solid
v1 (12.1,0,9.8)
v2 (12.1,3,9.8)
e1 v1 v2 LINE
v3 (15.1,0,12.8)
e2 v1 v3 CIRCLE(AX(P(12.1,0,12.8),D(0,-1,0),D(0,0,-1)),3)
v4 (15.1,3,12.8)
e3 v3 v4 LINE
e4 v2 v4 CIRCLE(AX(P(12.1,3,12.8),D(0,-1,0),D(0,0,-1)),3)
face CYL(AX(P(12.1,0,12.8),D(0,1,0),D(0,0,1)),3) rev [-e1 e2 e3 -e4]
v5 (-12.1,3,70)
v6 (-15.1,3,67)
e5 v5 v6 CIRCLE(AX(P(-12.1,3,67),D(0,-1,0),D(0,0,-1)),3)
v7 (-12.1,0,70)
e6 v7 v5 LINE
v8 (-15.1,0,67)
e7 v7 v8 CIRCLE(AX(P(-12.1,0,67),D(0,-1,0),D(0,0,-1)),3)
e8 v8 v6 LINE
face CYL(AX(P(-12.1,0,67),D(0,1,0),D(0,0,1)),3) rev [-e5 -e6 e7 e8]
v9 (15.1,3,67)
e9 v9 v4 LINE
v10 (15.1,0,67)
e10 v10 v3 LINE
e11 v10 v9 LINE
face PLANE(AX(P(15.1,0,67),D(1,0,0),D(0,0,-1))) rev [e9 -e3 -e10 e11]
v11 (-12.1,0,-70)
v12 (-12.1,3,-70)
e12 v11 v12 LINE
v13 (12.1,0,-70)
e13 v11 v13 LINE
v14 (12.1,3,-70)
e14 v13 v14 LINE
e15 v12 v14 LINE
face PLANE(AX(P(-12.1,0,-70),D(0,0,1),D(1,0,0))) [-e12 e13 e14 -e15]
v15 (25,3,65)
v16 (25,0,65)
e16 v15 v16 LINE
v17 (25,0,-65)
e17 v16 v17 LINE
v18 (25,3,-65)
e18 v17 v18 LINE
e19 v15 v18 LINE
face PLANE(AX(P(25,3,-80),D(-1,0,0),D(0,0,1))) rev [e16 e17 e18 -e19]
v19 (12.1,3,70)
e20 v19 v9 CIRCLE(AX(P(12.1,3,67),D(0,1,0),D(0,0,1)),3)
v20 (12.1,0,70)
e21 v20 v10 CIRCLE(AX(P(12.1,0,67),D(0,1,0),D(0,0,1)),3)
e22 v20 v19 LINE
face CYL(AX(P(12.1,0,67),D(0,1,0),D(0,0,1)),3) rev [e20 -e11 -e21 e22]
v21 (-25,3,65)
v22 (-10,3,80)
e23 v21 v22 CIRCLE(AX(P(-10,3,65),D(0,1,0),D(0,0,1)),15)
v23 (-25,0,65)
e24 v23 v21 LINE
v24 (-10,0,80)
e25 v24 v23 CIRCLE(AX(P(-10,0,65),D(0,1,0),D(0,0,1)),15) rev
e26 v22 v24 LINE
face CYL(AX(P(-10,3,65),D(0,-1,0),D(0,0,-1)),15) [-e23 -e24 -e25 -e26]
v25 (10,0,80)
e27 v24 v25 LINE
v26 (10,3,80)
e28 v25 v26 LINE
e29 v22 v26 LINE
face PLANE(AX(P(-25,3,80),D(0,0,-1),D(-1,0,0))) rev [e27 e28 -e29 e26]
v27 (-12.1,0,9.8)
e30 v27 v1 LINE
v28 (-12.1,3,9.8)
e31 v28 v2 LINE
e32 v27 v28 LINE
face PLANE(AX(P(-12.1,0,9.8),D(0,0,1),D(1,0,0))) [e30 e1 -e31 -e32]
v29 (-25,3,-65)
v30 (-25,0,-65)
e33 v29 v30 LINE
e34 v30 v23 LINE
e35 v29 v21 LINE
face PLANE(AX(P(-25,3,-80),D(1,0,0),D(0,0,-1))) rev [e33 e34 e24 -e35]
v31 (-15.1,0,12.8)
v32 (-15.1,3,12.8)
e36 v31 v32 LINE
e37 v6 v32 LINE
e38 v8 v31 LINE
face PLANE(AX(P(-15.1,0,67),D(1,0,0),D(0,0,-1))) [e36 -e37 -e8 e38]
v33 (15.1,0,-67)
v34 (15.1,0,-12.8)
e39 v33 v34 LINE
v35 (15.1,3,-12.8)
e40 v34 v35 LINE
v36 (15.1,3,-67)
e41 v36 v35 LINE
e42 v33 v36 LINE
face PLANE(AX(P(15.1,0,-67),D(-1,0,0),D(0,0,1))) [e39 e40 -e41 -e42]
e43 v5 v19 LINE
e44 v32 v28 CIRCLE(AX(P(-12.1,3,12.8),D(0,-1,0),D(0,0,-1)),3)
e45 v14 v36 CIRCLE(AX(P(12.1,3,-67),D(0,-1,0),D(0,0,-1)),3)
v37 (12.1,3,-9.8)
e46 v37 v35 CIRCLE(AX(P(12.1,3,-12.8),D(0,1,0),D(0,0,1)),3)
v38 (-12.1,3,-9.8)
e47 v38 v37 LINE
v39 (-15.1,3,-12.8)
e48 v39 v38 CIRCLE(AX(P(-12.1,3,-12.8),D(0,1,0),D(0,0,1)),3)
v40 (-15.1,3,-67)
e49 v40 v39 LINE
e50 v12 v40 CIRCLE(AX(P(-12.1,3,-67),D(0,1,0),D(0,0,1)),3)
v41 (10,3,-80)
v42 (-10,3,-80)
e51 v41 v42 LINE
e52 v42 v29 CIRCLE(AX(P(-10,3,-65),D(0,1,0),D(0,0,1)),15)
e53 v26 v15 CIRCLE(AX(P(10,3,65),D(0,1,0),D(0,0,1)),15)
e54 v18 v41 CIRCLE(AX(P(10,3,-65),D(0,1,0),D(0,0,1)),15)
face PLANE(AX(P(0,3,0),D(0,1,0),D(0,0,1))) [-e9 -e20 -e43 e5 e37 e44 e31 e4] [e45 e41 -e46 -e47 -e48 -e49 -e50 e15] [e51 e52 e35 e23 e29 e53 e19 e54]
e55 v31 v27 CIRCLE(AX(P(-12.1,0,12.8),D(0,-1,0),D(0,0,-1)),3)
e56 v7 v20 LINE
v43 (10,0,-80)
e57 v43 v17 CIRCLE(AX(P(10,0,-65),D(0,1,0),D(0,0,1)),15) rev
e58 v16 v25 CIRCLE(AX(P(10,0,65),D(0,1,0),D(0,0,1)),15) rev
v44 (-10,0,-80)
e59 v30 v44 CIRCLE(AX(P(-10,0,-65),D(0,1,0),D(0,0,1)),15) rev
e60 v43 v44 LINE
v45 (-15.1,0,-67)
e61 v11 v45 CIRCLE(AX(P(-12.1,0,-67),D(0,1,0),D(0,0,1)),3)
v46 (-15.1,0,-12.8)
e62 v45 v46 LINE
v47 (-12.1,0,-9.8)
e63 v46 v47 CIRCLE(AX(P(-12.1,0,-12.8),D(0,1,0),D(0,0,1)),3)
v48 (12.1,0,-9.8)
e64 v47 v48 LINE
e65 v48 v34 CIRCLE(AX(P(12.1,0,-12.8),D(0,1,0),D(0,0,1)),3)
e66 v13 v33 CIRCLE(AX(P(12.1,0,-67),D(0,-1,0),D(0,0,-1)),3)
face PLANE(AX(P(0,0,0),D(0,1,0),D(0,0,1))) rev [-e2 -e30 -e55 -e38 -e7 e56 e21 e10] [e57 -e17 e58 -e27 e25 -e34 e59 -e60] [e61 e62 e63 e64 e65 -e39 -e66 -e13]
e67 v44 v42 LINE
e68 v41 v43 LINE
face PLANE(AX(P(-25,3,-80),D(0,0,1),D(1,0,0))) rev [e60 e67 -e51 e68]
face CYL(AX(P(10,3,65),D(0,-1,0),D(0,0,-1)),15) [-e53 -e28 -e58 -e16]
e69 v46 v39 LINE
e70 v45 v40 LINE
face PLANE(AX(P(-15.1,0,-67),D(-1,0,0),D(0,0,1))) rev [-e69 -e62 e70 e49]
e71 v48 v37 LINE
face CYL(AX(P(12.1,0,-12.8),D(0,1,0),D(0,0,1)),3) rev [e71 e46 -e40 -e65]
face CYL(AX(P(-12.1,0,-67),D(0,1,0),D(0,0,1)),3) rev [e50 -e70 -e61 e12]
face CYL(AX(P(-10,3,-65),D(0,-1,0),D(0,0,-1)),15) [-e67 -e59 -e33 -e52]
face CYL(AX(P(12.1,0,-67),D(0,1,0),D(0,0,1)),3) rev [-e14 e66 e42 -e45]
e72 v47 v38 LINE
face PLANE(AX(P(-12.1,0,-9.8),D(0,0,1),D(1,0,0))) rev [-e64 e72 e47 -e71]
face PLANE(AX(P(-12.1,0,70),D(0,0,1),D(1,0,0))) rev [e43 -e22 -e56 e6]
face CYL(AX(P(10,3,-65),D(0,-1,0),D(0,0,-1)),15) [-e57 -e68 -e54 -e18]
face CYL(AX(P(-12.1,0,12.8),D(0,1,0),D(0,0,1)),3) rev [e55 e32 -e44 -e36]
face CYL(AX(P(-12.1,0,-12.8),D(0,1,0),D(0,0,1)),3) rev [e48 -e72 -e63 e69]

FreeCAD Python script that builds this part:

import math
import FreeCAD as App
import Part
import Sketcher
from FreeCAD import Vector
Q = App.Units.Quantity


def edges_at(feature, points):
    """Names of the edges that pass closest to the given points."""
    edges = feature.Shape.Edges
    near = lambda p: min(range(len(edges)), key=lambda i: edges[i].distToShape(Part.Vertex(*p))[0])
    return sorted({f"Edge{near(p) + 1}" for p in points})


def add_polygon(sketch, points):
    """Adds a closed chain of lines whose ends are joined by coincident constraints."""
    first, n = sketch.GeometryCount, len(points)
    for a, b in zip(points, points[1:] + points[:1]):
        sketch.addGeometry(Part.LineSegment(App.Vector(*a, 0), App.Vector(*b, 0)), False)
    for i in range(n):
        sketch.addConstraint(Sketcher.Constraint("Coincident", first + i, 2, first + (i + 1) % n, 1))

doc = App.newDocument("Part")
body = doc.addObject("PartDesign::Body", "Body")

# Sketch on XZ plane
sketch1 = body.newObject("Sketcher::SketchObject", "Sketch")
sketch1.AttachmentSupport = (doc.getObject("XZ_Plane"), [""])
sketch1.MapMode = "FlatFace"
add_polygon(sketch1, [(-25, -80), (-25, 80), (25, 80), (25, -80)])  # lines 0-3
sketch1.addConstraint(Sketcher.Constraint("Vertical", 0))
sketch1.addConstraint(Sketcher.Constraint("Horizontal", 1))
sketch1.addConstraint(Sketcher.Constraint("Vertical", 2))
sketch1.addConstraint(Sketcher.Constraint("Horizontal", 3))
sketch1.addConstraint(Sketcher.Constraint("Symmetric", 0, 2, 2, 2, -1, 1))
sketch1.addConstraint(Sketcher.Constraint("DistanceX", 1, 1, 1, 2, Q("50 mm")))
sketch1.addConstraint(Sketcher.Constraint("DistanceY", 0, 1, 0, 2, Q("160 mm")))
pad1 = body.newObject("PartDesign::Pad", "Pad")
pad1.Profile = sketch1
pad1.Length = 3
pad1.Reversed = True
doc.recompute()

fillet = body.newObject("PartDesign::Fillet", "Fillet")
fillet.Base = (pad1, edges_at(pad1, [
    (25, 1.5, 80),
    (-25, 1.5, 80),
    (-25, 1.5, -80),
    (25, 1.5, -80),
]))
fillet.Radius = 15

# Sketch on XZ plane
sketch2 = body.newObject("Sketcher::SketchObject", "Sketch001")
sketch2.AttachmentSupport = (doc.getObject("XZ_Plane"), [""])
sketch2.MapMode = "FlatFace"
sketch2.AttachmentOffset = App.Placement(Vector(0, 0, -3), App.Rotation())
sketch2.addGeometry(Part.LineSegment(Vector(12.1, -70, 0), Vector(-12.1, -70, 0)), False)
sketch2.addGeometry(Part.ArcOfCircle(Part.Circle(Vector(-12.1, -67, 0), Vector(0, 0, 1), 3), math.radians(180), math.radians(270)), False)
sketch2.addGeometry(Part.LineSegment(Vector(-15.1, -67, 0), Vector(-15.1, -12.8, 0)), False)
sketch2.addGeometry(Part.ArcOfCircle(Part.Circle(Vector(-12.1, -12.8, 0), Vector(0, 0, 1), 3), math.radians(90), math.radians(180)), False)
sketch2.addGeometry(Part.LineSegment(Vector(-12.1, -9.8, 0), Vector(12.1, -9.8, 0)), False)
sketch2.addGeometry(Part.ArcOfCircle(Part.Circle(Vector(12.1, -12.8, 0), Vector(0, 0, 1), 3), math.radians(0), math.radians(90)), False)
sketch2.addGeometry(Part.LineSegment(Vector(15.1, -12.8, 0), Vector(15.1, -67, 0)), False)
sketch2.addGeometry(Part.ArcOfCircle(Part.Circle(Vector(12.1, -67, 0), Vector(0, 0, 1), 3), math.radians(-90), math.radians(0)), False)
sketch2.addConstraint(Sketcher.Constraint("Tangent", 0, 2, 1, 2))
sketch2.addConstraint(Sketcher.Constraint("Tangent", 1, 1, 2, 1))
sketch2.addConstraint(Sketcher.Constraint("Tangent", 2, 2, 3, 2))
sketch2.addConstraint(Sketcher.Constraint("Tangent", 3, 1, 4, 1))
sketch2.addConstraint(Sketcher.Constraint("Tangent", 4, 2, 5, 2))
sketch2.addConstraint(Sketcher.Constraint("Tangent", 5, 1, 6, 1))
sketch2.addConstraint(Sketcher.Constraint("Tangent", 6, 2, 7, 2))
sketch2.addConstraint(Sketcher.Constraint("Tangent", 7, 1, 0, 1))
sketch2.addConstraint(Sketcher.Constraint("Horizontal", 0))
sketch2.addConstraint(Sketcher.Constraint("Vertical", 2))
sketch2.addConstraint(Sketcher.Constraint("Horizontal", 4))
sketch2.addConstraint(Sketcher.Constraint("Vertical", 6))
sketch2.addConstraint(Sketcher.Constraint("Equal", 1, 3))
sketch2.addConstraint(Sketcher.Constraint("Equal", 3, 5))
sketch2.addConstraint(Sketcher.Constraint("Equal", 5, 7))
sketch2.addConstraint(Sketcher.Constraint("Radius", 1, Q("3 mm")))
sketch2.addConstraint(Sketcher.Constraint("DistanceX", 0, 2, 0, 1, Q("24.2 mm")))
sketch2.addConstraint(Sketcher.Constraint("DistanceY", 2, 1, 2, 2, Q("54.2 mm")))
sketch2.addConstraint(Sketcher.Constraint("DistanceY", 1, 3, -1, 1, Q("67 mm")))
sketch2.addConstraint(Sketcher.Constraint("DistanceX", 1, 3, -1, 1, Q("12.1 mm")))
pocket1 = body.newObject("PartDesign::Pocket", "Pocket")
pocket1.Profile = sketch2
pocket1.Type = "ThroughAll"
pocket1.Reversed = True
doc.recompute()

mirrored = body.newObject("PartDesign::Mirrored", "Mirrored")
mirrored.Originals = [pocket1]
mirrored.MirrorPlane = (doc.getObject("XY_Plane"), [""])
body.Tip = mirrored

doc.recompute()
